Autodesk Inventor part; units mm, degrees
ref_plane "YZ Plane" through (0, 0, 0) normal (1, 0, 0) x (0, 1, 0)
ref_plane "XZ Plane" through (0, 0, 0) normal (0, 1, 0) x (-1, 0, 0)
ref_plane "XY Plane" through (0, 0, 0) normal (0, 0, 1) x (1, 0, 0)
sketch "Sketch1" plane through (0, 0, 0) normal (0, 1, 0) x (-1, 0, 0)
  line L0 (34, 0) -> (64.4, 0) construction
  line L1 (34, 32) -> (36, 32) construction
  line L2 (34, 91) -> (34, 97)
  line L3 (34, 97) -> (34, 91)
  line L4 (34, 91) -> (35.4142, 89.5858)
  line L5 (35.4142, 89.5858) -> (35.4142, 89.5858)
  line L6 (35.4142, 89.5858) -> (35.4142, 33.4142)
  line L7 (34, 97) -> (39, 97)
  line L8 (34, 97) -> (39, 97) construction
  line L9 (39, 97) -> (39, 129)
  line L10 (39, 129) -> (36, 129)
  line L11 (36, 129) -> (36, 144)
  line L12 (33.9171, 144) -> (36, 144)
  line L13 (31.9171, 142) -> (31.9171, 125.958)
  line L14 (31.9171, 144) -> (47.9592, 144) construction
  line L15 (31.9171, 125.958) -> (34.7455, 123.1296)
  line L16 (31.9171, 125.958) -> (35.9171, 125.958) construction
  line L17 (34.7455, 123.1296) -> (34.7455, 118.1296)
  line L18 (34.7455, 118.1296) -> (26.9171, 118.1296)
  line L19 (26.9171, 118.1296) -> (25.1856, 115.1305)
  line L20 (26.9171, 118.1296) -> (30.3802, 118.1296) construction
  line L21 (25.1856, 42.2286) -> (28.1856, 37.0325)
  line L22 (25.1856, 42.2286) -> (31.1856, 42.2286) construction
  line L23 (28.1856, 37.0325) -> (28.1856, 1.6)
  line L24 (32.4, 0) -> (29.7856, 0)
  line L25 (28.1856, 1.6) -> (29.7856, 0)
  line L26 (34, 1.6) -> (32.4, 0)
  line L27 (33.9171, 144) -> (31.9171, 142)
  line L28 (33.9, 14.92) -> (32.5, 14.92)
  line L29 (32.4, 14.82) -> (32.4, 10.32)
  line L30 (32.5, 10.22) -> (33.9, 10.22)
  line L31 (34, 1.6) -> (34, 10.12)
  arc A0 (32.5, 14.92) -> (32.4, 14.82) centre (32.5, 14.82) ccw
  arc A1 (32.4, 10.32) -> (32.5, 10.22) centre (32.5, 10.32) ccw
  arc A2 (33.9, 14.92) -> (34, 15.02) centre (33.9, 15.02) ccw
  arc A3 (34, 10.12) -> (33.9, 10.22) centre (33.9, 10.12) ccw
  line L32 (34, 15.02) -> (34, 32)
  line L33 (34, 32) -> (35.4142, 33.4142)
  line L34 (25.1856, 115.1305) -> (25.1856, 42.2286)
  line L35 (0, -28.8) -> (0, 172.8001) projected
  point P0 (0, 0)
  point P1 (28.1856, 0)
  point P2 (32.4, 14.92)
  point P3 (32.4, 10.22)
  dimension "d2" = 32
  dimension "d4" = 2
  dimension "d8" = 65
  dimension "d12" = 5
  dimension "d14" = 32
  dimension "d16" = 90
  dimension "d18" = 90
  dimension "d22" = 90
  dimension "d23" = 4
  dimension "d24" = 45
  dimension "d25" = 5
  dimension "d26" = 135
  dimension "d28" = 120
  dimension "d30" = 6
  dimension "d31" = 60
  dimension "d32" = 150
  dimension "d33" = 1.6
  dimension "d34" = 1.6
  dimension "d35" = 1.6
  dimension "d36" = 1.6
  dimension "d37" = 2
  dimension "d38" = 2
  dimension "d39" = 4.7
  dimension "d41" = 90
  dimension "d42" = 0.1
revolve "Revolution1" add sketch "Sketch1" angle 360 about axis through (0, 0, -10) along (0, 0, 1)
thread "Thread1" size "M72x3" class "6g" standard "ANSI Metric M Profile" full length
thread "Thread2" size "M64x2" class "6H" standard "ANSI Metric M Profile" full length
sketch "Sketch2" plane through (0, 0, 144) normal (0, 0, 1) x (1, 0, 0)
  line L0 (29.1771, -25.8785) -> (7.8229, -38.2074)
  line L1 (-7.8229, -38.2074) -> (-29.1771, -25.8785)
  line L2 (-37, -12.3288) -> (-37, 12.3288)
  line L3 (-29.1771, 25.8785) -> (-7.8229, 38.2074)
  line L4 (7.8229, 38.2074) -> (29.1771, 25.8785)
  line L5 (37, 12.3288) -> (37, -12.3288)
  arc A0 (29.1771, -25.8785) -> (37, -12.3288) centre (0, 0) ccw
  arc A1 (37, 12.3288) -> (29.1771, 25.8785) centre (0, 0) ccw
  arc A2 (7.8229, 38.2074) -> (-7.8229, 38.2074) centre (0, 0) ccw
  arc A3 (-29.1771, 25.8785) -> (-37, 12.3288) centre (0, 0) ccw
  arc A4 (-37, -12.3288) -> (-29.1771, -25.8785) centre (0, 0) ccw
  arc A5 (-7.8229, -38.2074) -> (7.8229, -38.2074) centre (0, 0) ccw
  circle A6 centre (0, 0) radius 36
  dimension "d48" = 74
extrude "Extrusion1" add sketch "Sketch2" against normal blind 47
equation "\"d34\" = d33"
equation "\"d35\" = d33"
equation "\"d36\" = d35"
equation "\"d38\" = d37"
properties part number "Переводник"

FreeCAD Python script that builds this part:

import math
import FreeCAD as App
import Part
import Sketcher

V = App.Vector
Q = App.Units.Quantity

doc = App.newDocument("Part")
body = doc.addObject("PartDesign::Body", "Body")

sketch1 = doc.addObject("Sketcher::SketchObject", "Sketch")
body.addObject(sketch1)
sketch1.AttachmentSupport = (doc.XZ_Plane, [""])
sketch1.MapMode = "FlatFace"
sketch1.addGeometry(Part.LineSegment(V(-35.41, 89.59, 0), V(-34, 91, 0)), False)
sketch1.addGeometry(Part.LineSegment(V(-34, 91, 0), V(-34, 97, 0)), False)
sketch1.addGeometry(Part.LineSegment(V(-34, 97, 0), V(-39, 97, 0)), False)
sketch1.addGeometry(Part.LineSegment(V(-39, 97, 0), V(-39, 129, 0)), False)
sketch1.addGeometry(Part.LineSegment(V(-39, 129, 0), V(-36, 129, 0)), False)
sketch1.addGeometry(Part.LineSegment(V(-36, 129, 0), V(-36, 144, 0)), False)
sketch1.addGeometry(Part.LineSegment(V(-36, 144, 0), V(-33.92, 144, 0)), False)
sketch1.addGeometry(Part.LineSegment(V(-33.92, 144, 0), V(-31.92, 142, 0)), False)
sketch1.addGeometry(Part.LineSegment(V(-31.92, 142, 0), V(-31.92, 125.96, 0)), False)
sketch1.addGeometry(Part.LineSegment(V(-31.92, 125.96, 0), V(-34.75, 123.13, 0)), False)
sketch1.addGeometry(Part.LineSegment(V(-34.75, 123.13, 0), V(-34.75, 118.13, 0)), False)
sketch1.addGeometry(Part.LineSegment(V(-34.75, 118.13, 0), V(-26.92, 118.13, 0)), False)
sketch1.addGeometry(Part.LineSegment(V(-26.92, 118.13, 0), V(-25.19, 115.13, 0)), False)
sketch1.addGeometry(Part.LineSegment(V(-25.19, 115.13, 0), V(-25.19, 42.23, 0)), False)
sketch1.addGeometry(Part.LineSegment(V(-25.19, 42.23, 0), V(-28.19, 37.03, 0)), False)
sketch1.addGeometry(Part.LineSegment(V(-28.19, 37.03, 0), V(-28.19, 1.6, 0)), False)
sketch1.addGeometry(Part.LineSegment(V(-28.19, 1.6, 0), V(-29.79, 0, 0)), False)
sketch1.addGeometry(Part.LineSegment(V(-29.79, 0, 0), V(-32.4, 0, 0)), False)
sketch1.addGeometry(Part.LineSegment(V(-32.4, 0, 0), V(-34, 1.6, 0)), False)
sketch1.addGeometry(Part.LineSegment(V(-34, 1.6, 0), V(-34, 10.12, 0)), False)
sketch1.addGeometry(Part.ArcOfCircle(Part.Circle(V(-33.9, 10.12, 0), V(0, 0, 1), 0.1), math.radians(90), math.radians(180)), False)
sketch1.addGeometry(Part.LineSegment(V(-33.9, 10.22, 0), V(-32.5, 10.22, 0)), False)
sketch1.addGeometry(Part.ArcOfCircle(Part.Circle(V(-32.5, 10.32, 0), V(0, 0, 1), 0.1), math.radians(-90), math.radians(0)), False)
sketch1.addGeometry(Part.LineSegment(V(-32.4, 10.32, 0), V(-32.4, 14.82, 0)), False)
sketch1.addGeometry(Part.ArcOfCircle(Part.Circle(V(-32.5, 14.82, 0), V(0, 0, 1), 0.1), math.radians(0), math.radians(90)), False)
sketch1.addGeometry(Part.LineSegment(V(-32.5, 14.92, 0), V(-33.9, 14.92, 0)), False)
sketch1.addGeometry(Part.ArcOfCircle(Part.Circle(V(-33.9, 15.02, 0), V(0, 0, 1), 0.1), math.radians(180), math.radians(270)), False)
sketch1.addGeometry(Part.LineSegment(V(-34, 15.02, 0), V(-34, 32, 0)), False)
sketch1.addGeometry(Part.LineSegment(V(-34, 32, 0), V(-35.41, 33.41, 0)), False)
sketch1.addGeometry(Part.LineSegment(V(-35.41, 33.41, 0), V(-35.41, 89.59, 0)), False)
sketch1.addConstraint(Sketcher.Constraint("Coincident", 0, 2, 1, 1))
sketch1.addConstraint(Sketcher.Constraint("Coincident", 1, 2, 2, 1))
sketch1.addConstraint(Sketcher.Constraint("Coincident", 2, 2, 3, 1))
sketch1.addConstraint(Sketcher.Constraint("Coincident", 3, 2, 4, 1))
sketch1.addConstraint(Sketcher.Constraint("Coincident", 4, 2, 5, 1))
sketch1.addConstraint(Sketcher.Constraint("Coincident", 5, 2, 6, 1))
sketch1.addConstraint(Sketcher.Constraint("Coincident", 6, 2, 7, 1))
sketch1.addConstraint(Sketcher.Constraint("Coincident", 7, 2, 8, 1))
sketch1.addConstraint(Sketcher.Constraint("Coincident", 8, 2, 9, 1))
sketch1.addConstraint(Sketcher.Constraint("Coincident", 9, 2, 10, 1))
sketch1.addConstraint(Sketcher.Constraint("Coincident", 10, 2, 11, 1))
sketch1.addConstraint(Sketcher.Constraint("Coincident", 11, 2, 12, 1))
sketch1.addConstraint(Sketcher.Constraint("Coincident", 12, 2, 13, 1))
sketch1.addConstraint(Sketcher.Constraint("Coincident", 13, 2, 14, 1))
sketch1.addConstraint(Sketcher.Constraint("Coincident", 14, 2, 15, 1))
sketch1.addConstraint(Sketcher.Constraint("Coincident", 15, 2, 16, 1))
sketch1.addConstraint(Sketcher.Constraint("Coincident", 16, 2, 17, 1))
sketch1.addConstraint(Sketcher.Constraint("Coincident", 17, 2, 18, 1))
sketch1.addConstraint(Sketcher.Constraint("Coincident", 18, 2, 19, 1))
sketch1.addConstraint(Sketcher.Constraint("Tangent", 19, 2, 20, 2))
sketch1.addConstraint(Sketcher.Constraint("Tangent", 20, 1, 21, 1))
sketch1.addConstraint(Sketcher.Constraint("Tangent", 21, 2, 22, 1))
sketch1.addConstraint(Sketcher.Constraint("Tangent", 22, 2, 23, 1))
sketch1.addConstraint(Sketcher.Constraint("Tangent", 23, 2, 24, 1))
sketch1.addConstraint(Sketcher.Constraint("Tangent", 24, 2, 25, 1))
sketch1.addConstraint(Sketcher.Constraint("Tangent", 25, 2, 26, 2))
sketch1.addConstraint(Sketcher.Constraint("Tangent", 26, 1, 27, 1))
sketch1.addConstraint(Sketcher.Constraint("Coincident", 27, 2, 28, 1))
sketch1.addConstraint(Sketcher.Constraint("Coincident", 28, 2, 29, 1))
sketch1.addConstraint(Sketcher.Constraint("Coincident", 29, 2, 0, 1))
sketch1.addConstraint(Sketcher.Constraint("Vertical", 1))
sketch1.addConstraint(Sketcher.Constraint("Horizontal", 2))
sketch1.addConstraint(Sketcher.Constraint("Vertical", 3))
sketch1.addConstraint(Sketcher.Constraint("Horizontal", 4))
sketch1.addConstraint(Sketcher.Constraint("Vertical", 5))
sketch1.addConstraint(Sketcher.Constraint("Horizontal", 6))
sketch1.addConstraint(Sketcher.Constraint("Vertical", 8))
sketch1.addConstraint(Sketcher.Constraint("Vertical", 10))
sketch1.addConstraint(Sketcher.Constraint("Horizontal", 11))
sketch1.addConstraint(Sketcher.Constraint("Vertical", 13))
sketch1.addConstraint(Sketcher.Constraint("Vertical", 15))
sketch1.addConstraint(Sketcher.Constraint("Horizontal", 17))
sketch1.addConstraint(Sketcher.Constraint("Vertical", 19))
sketch1.addConstraint(Sketcher.Constraint("Horizontal", 21))
sketch1.addConstraint(Sketcher.Constraint("Vertical", 23))
sketch1.addConstraint(Sketcher.Constraint("Horizontal", 25))
sketch1.addConstraint(Sketcher.Constraint("Vertical", 27))
sketch1.addConstraint(Sketcher.Constraint("Vertical", 29))
sketch1.addConstraint(Sketcher.Constraint("Equal", 20, 22))
sketch1.addConstraint(Sketcher.Constraint("Equal", 22, 24))
sketch1.addConstraint(Sketcher.Constraint("Equal", 24, 26))
sketch1.addConstraint(Sketcher.Constraint("PointOnObject", 16, 2, -1))
sketch1.addConstraint(Sketcher.Constraint("Perpendicular", 0, 7))
sketch1.addConstraint(Sketcher.Constraint("Perpendicular", 7, 9))
sketch1.addConstraint(Sketcher.Constraint("Parallel", 9, 16))
sketch1.addConstraint(Sketcher.Constraint("Perpendicular", 16, 18))
sketch1.addConstraint(Sketcher.Constraint("Parallel", 18, 28))
sketch1.addConstraint(Sketcher.Constraint("Horizontal", 15, 2, 18, 2))
sketch1.addConstraint(Sketcher.Constraint("Vertical", 20, 3, 26, 3))
sketch1.addConstraint(Sketcher.Constraint("Vertical", 1, 2, 18, 2))
sketch1.addConstraint(Sketcher.Constraint("Vertical", 17, 2, 22, 2))
sketch1.addConstraint(Sketcher.Constraint("Equal", 2, 10))
sketch1.addConstraint(Sketcher.Constraint("Equal", 16, 18))
sketch1.addConstraint(Sketcher.Constraint("Radius", 20, Q("0.1 mm")))
sketch1.addConstraint(Sketcher.Constraint("DistanceX", 2, 2, 2, 1, Q("5 mm")))
sketch1.addConstraint(Sketcher.Constraint("DistanceY", 1, 1, 1, 2, Q("6 mm")))
sketch1.addConstraint(Sketcher.Constraint("DistanceY", 3, 1, 3, 2, Q("32 mm")))
sketch1.addConstraint(Sketcher.Constraint("Angle", 12, Q("-60.0004 deg")))
sketch1.addConstraint(Sketcher.Constraint("Angle", 14, Q("-120.0003 deg")))
sketch1.addConstraint(Sketcher.Constraint("Distance", 0, Q("2 mm")))
sketch1.addConstraint(Sketcher.Constraint("Distance", 9, Q("4 mm")))
sketch1.addConstraint(Sketcher.Constraint("Distance", 14, Q("6 mm")))
sketch1.addConstraint(Sketcher.Constraint("DistanceY", -1, 1, 27, 2, Q("32 mm")))
sketch1.addConstraint(Sketcher.Constraint("DistanceX", 4, 2, 1, 2, Q("2 mm")))
sketch1.addConstraint(Sketcher.Constraint("DistanceX", 6, 2, 7, 2, Q("2 mm")))
sketch1.addConstraint(Sketcher.Constraint("DistanceY", 1, 2, 7, 2, Q("45 mm")))
sketch1.addConstraint(Sketcher.Constraint("DistanceX", 8, 2, 11, 2, Q("5 mm")))
sketch1.addConstraint(Sketcher.Constraint("DistanceY", -1, 1, 15, 2, Q("1.6 mm")))
sketch1.addConstraint(Sketcher.Constraint("DistanceY", 20, 3, 24, 3, Q("4.7 mm")))
sketch1.addConstraint(Sketcher.Constraint("DistanceX", 0, 2, -1, 1, Q("34 mm")))
sketch1.addConstraint(Sketcher.Constraint("DistanceY", -1, 1, 0, 2, Q("91 mm")))
sketch1.addConstraint(Sketcher.Constraint("DistanceY", 19, 1, 19, 2, Q("8.52 mm")))
sketch1.addConstraint(Sketcher.Constraint("DistanceX", 6, 1, 6, 2, Q("2.083 mm")))
sketch1.addConstraint(Sketcher.Constraint("DistanceY", 8, 2, 8, 1, Q("16.042 mm")))
sketch1.addConstraint(Sketcher.Constraint("DistanceY", 13, 2, 13, 1, Q("72.902 mm")))
sketch1.addConstraint(Sketcher.Constraint("DistanceX", 10, 2, 12, 2, Q("9.56 mm")))
revolution = doc.addObject("PartDesign::Revolution", "Revolution")
body.addObject(revolution)
revolution.Profile = sketch1
revolution.ReferenceAxis = (sketch1, ["V_Axis"])
revolution.Angle = 360

sketch2 = doc.addObject("Sketcher::SketchObject", "Sketch001")
body.addObject(sketch2)
sketch2.AttachmentSupport = (doc.XY_Plane, [""])
sketch2.MapMode = "FlatFace"
sketch2.AttachmentOffset = App.Placement(V(0, 0, 144), App.Rotation())
sketch2.addGeometry(Part.LineSegment(V(8, -38, 0), V(29, -26, 0)), False)
sketch2.addGeometry(Part.ArcOfCircle(Part.Circle(V(0, 0, 0), V(0, 0, 1), 39), math.radians(-42), math.radians(-18)), False)
sketch2.addGeometry(Part.LineSegment(V(37, -12, 0), V(37, 12, 0)), False)
sketch2.addGeometry(Part.ArcOfCircle(Part.Circle(V(0, 0, 0), V(0, 0, 1), 39), math.radians(18), math.radians(42)), False)
sketch2.addGeometry(Part.LineSegment(V(29, 26, 0), V(8, 38, 0)), False)
sketch2.addGeometry(Part.ArcOfCircle(Part.Circle(V(0, 0, 0), V(0, 0, 1), 39), math.radians(78), math.radians(102)), False)
sketch2.addGeometry(Part.LineSegment(V(-8, 38, 0), V(-29, 26, 0)), False)
sketch2.addGeometry(Part.ArcOfCircle(Part.Circle(V(0, 0, 0), V(0, 0, 1), 39), math.radians(138), math.radians(162)), False)
sketch2.addGeometry(Part.LineSegment(V(-37, 12, 0), V(-37, -12, 0)), False)
sketch2.addGeometry(Part.ArcOfCircle(Part.Circle(V(0, 0, 0), V(0, 0, 1), 39), math.radians(-162), math.radians(-138)), False)
sketch2.addGeometry(Part.LineSegment(V(-29, -26, 0), V(-8, -38, 0)), False)
sketch2.addGeometry(Part.ArcOfCircle(Part.Circle(V(0, 0, 0), V(0, 0, 1), 39), math.radians(-102), math.radians(-78)), False)
sketch2.addGeometry(Part.Circle(V(0, 0, 0), V(0, 0, 1), 36), False)
sketch2.addConstraint(Sketcher.Constraint("Coincident", 0, 2, 1, 1))
sketch2.addConstraint(Sketcher.Constraint("Coincident", 1, 2, 2, 1))
sketch2.addConstraint(Sketcher.Constraint("Coincident", 2, 2, 3, 1))
sketch2.addConstraint(Sketcher.Constraint("Coincident", 3, 2, 4, 1))
sketch2.addConstraint(Sketcher.Constraint("Coincident", 4, 2, 5, 1))
sketch2.addConstraint(Sketcher.Constraint("Coincident", 5, 2, 6, 1))
sketch2.addConstraint(Sketcher.Constraint("Coincident", 6, 2, 7, 1))
sketch2.addConstraint(Sketcher.Constraint("Coincident", 7, 2, 8, 1))
sketch2.addConstraint(Sketcher.Constraint("Coincident", 8, 2, 9, 1))
sketch2.addConstraint(Sketcher.Constraint("Coincident", 9, 2, 10, 1))
sketch2.addConstraint(Sketcher.Constraint("Coincident", 10, 2, 11, 1))
sketch2.addConstraint(Sketcher.Constraint("Coincident", 11, 2, 0, 1))
sketch2.addConstraint(Sketcher.Constraint("Vertical", 2))
sketch2.addConstraint(Sketcher.Constraint("Vertical", 8))
sketch2.addConstraint(Sketcher.Constraint("Coincident", 1, 3, -1, 1))
sketch2.addConstraint(Sketcher.Constraint("Coincident", 3, 3, -1, 1))
sketch2.addConstraint(Sketcher.Constraint("Coincident", 5, 3, -1, 1))
sketch2.addConstraint(Sketcher.Constraint("Coincident", 7, 3, -1, 1))
sketch2.addConstraint(Sketcher.Constraint("Coincident", 9, 3, -1, 1))
sketch2.addConstraint(Sketcher.Constraint("Coincident", 11, 3, -1, 1))
sketch2.addConstraint(Sketcher.Constraint("Coincident", 12, 3, -1, 1))
sketch2.addConstraint(Sketcher.Constraint("Equal", 1, 3))
sketch2.addConstraint(Sketcher.Constraint("Equal", 3, 5))
sketch2.addConstraint(Sketcher.Constraint("Equal", 5, 7))
sketch2.addConstraint(Sketcher.Constraint("Equal", 7, 9))
sketch2.addConstraint(Sketcher.Constraint("Equal", 9, 11))
sketch2.addConstraint(Sketcher.Constraint("Parallel", 0, 6))
sketch2.addConstraint(Sketcher.Constraint("Parallel", 4, 10))
sketch2.addConstraint(Sketcher.Constraint("Horizontal", 4, 2, 5, 2))
sketch2.addConstraint(Sketcher.Constraint("Horizontal", 3, 2, 6, 2))
sketch2.addConstraint(Sketcher.Constraint("Horizontal", 2, 2, 7, 2))
sketch2.addConstraint(Sketcher.Constraint("Horizontal", 0, 2, 9, 2))
sketch2.addConstraint(Sketcher.Constraint("Vertical", 0, 2, 3, 2))
sketch2.addConstraint(Sketcher.Constraint("Diameter", 12, Q("72 mm")))
sketch2.addConstraint(Sketcher.Constraint("Radius", 1, Q("39 mm")))
sketch2.addConstraint(Sketcher.Constraint("Angle", 0, Q("30 deg")))
sketch2.addConstraint(Sketcher.Constraint("DistanceX", -1, 1, 1, 2, Q("37 mm")))
sketch2.addConstraint(Sketcher.Constraint("DistanceX", 10, 2, 0, 2, Q("37 mm")))
pad1 = doc.addObject("PartDesign::Pad", "Pad")
body.addObject(pad1)
pad1.Profile = sketch2
pad1.Length = 47
pad1.Reversed = True

doc.recompute()
